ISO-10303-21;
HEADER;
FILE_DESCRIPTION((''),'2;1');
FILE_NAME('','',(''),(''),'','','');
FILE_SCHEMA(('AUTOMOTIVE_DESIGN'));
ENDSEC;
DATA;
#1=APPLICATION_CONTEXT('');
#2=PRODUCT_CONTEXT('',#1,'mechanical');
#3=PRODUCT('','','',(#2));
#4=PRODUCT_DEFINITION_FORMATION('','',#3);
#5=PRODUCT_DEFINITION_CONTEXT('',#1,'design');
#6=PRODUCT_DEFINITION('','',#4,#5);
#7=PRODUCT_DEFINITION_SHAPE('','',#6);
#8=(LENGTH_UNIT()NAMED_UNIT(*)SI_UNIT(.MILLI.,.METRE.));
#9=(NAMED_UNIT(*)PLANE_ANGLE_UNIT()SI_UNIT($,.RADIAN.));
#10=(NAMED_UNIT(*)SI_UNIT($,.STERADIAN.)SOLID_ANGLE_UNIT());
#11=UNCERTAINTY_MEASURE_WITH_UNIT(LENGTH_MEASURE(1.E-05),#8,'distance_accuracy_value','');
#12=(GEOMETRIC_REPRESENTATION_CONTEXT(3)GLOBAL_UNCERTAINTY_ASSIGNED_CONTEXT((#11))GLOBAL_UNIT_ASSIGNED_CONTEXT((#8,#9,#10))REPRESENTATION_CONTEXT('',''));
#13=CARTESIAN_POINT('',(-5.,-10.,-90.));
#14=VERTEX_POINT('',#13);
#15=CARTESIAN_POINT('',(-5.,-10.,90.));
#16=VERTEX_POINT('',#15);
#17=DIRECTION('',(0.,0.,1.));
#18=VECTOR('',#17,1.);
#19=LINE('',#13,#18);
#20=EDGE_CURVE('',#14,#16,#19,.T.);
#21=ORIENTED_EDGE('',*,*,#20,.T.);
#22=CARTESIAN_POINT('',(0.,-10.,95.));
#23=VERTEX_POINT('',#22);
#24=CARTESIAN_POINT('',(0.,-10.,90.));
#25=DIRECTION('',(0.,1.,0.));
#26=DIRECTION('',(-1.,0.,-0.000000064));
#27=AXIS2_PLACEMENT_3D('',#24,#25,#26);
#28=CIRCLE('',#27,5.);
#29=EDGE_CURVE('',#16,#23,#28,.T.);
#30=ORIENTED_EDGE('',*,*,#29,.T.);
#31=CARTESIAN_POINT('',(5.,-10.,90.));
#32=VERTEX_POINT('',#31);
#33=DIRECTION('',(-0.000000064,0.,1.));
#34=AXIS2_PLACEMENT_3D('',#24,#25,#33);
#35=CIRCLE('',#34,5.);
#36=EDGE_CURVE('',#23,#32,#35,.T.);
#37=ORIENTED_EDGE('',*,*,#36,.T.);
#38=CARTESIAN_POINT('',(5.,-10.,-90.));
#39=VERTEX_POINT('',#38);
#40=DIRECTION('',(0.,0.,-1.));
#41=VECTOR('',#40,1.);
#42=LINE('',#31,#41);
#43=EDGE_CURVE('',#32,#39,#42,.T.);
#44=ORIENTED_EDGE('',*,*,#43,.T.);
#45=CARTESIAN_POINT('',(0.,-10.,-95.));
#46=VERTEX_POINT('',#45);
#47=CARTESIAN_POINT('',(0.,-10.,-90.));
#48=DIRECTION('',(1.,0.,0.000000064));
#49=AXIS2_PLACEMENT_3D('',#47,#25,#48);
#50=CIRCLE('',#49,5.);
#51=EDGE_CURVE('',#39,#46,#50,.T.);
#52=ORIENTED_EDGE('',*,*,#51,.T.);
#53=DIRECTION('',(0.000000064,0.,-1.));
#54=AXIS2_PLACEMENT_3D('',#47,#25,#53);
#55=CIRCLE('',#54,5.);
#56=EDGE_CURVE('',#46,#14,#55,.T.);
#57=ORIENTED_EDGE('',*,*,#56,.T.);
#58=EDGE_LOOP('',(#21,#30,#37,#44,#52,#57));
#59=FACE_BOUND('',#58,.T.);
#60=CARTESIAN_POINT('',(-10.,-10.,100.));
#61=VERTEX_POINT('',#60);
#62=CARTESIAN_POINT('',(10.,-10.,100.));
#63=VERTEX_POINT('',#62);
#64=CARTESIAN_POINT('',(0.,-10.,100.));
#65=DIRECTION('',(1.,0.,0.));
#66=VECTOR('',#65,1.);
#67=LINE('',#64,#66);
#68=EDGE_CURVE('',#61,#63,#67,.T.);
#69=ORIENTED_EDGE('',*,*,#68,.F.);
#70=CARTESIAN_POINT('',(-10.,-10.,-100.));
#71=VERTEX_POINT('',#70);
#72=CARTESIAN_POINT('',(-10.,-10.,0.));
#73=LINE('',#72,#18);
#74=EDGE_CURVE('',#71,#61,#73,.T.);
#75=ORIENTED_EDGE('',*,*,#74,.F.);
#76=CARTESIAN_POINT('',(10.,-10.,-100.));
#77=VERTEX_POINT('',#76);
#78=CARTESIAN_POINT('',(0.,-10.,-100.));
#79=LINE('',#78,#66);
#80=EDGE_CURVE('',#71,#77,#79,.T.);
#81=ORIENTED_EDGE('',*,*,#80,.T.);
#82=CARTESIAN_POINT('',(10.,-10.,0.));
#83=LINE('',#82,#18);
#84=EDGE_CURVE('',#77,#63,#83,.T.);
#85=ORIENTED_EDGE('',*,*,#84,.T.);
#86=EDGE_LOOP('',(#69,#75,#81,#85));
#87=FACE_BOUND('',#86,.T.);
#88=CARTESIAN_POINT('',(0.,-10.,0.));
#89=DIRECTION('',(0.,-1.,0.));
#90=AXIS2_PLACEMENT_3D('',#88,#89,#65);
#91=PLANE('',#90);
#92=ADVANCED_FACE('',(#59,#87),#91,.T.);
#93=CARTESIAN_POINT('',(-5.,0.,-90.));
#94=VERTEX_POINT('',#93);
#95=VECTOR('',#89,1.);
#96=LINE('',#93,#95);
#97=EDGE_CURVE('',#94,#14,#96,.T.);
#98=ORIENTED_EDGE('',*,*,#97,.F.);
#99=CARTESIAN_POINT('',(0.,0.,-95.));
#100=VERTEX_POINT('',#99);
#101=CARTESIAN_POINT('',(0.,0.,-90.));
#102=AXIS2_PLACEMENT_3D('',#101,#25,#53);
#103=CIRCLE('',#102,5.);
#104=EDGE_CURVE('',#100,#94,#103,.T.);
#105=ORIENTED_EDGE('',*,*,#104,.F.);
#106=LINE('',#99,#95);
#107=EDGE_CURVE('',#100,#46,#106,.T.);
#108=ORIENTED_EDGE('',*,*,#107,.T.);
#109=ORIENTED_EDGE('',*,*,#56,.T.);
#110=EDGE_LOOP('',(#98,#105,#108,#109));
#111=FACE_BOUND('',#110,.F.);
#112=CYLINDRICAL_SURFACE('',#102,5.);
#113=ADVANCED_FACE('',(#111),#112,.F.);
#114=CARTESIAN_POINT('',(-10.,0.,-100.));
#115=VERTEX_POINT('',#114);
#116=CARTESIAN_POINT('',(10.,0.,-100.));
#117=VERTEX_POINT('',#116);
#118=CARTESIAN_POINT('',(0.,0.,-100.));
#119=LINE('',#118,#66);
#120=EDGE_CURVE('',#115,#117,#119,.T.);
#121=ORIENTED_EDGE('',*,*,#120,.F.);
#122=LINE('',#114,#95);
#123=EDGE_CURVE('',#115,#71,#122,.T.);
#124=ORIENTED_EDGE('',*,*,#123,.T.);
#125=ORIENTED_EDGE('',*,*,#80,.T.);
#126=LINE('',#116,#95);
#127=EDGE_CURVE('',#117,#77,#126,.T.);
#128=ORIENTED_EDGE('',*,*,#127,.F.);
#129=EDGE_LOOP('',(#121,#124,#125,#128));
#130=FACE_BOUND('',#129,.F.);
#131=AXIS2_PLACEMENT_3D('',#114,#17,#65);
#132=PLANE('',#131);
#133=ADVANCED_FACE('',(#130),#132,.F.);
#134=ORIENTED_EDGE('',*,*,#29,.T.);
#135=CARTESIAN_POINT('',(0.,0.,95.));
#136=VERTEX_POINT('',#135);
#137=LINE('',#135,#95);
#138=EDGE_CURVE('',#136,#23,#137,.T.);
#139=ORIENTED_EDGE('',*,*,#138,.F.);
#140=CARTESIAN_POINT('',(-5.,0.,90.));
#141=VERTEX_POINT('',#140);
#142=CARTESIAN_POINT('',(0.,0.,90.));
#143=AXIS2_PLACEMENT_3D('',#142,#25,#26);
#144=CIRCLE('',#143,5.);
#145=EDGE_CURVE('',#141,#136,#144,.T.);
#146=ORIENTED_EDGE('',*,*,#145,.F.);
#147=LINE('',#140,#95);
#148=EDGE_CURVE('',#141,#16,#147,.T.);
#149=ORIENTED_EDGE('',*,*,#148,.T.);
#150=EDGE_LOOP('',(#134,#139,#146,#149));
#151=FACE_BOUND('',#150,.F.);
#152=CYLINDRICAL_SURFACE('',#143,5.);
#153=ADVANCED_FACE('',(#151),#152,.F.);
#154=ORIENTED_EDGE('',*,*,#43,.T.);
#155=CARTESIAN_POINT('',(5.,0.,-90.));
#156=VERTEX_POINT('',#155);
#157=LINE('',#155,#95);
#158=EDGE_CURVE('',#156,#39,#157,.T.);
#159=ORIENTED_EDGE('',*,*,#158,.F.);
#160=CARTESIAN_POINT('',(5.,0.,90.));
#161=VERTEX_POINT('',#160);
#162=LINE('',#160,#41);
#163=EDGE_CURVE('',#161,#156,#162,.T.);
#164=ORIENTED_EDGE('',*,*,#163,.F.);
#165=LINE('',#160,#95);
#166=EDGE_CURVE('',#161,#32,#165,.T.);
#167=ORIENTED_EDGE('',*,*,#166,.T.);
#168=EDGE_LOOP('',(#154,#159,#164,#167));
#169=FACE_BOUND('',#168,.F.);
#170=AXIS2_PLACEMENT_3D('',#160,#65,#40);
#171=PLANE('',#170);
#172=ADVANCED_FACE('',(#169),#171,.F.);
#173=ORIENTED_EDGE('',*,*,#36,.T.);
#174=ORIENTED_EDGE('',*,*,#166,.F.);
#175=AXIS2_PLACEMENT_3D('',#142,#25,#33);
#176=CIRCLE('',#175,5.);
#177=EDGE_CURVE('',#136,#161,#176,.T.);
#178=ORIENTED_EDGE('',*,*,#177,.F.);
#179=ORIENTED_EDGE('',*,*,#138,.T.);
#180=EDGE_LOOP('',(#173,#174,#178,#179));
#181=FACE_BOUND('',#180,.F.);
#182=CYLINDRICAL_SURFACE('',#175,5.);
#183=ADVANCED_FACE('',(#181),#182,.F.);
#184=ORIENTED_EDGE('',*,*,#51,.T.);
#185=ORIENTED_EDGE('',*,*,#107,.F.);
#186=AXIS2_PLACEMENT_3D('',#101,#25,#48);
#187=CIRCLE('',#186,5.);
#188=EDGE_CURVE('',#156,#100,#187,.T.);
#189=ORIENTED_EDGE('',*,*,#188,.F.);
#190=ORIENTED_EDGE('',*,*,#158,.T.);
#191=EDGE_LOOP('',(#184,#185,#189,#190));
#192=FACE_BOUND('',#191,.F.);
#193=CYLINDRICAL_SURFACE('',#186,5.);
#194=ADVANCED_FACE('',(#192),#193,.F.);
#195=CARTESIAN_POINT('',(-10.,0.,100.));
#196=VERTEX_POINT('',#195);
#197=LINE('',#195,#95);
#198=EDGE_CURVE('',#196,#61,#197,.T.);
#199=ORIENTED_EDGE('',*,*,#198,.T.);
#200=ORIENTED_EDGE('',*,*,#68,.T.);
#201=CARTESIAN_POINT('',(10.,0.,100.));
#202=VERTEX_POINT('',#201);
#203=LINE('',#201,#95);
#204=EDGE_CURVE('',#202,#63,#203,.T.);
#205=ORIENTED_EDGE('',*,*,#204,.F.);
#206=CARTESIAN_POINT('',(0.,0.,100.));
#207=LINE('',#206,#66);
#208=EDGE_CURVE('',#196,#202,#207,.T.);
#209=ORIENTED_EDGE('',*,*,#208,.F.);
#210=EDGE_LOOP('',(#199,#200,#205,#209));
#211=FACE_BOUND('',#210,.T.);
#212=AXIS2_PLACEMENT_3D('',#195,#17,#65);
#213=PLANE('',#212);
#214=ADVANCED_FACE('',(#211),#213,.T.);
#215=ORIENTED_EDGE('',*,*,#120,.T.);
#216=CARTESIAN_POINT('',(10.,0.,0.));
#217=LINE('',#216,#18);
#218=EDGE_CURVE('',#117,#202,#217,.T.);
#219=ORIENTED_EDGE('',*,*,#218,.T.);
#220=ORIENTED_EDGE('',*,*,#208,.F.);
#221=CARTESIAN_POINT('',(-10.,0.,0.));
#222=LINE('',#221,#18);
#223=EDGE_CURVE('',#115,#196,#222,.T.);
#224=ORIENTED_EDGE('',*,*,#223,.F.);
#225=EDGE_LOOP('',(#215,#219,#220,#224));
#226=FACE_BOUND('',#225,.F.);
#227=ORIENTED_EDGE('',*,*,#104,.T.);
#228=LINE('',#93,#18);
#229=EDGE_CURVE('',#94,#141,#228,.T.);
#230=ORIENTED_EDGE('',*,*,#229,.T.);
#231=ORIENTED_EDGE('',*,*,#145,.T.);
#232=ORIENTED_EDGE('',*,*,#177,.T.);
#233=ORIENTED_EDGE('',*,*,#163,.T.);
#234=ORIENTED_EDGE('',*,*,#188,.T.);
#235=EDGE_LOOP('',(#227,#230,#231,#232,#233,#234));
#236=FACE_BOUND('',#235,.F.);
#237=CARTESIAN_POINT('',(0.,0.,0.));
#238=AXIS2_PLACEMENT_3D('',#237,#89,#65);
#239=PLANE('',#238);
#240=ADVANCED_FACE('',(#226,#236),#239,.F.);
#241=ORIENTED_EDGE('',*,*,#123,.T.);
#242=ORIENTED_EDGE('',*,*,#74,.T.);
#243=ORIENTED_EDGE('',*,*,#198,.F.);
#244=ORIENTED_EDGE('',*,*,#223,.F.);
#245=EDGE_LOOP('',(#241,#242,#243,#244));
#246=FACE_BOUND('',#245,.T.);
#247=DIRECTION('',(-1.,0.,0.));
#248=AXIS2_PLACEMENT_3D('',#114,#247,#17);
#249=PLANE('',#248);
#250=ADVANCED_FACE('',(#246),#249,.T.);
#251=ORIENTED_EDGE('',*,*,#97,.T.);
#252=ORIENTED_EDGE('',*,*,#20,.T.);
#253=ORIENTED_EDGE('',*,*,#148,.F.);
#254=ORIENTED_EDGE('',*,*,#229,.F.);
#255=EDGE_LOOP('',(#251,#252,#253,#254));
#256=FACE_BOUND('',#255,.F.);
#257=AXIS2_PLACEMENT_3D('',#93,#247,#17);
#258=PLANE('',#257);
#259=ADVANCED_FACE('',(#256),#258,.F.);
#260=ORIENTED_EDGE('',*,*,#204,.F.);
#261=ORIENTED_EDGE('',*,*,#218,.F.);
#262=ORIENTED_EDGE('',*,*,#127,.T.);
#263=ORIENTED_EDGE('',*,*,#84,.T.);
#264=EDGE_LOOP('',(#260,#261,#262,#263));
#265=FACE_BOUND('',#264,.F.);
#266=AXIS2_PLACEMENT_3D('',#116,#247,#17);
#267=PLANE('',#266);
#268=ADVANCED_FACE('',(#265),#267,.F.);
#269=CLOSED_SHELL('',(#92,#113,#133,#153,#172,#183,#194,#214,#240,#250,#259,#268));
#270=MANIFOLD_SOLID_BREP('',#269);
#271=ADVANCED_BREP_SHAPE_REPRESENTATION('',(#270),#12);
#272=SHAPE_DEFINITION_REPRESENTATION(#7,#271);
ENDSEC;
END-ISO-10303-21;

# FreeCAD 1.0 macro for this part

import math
import FreeCAD as App
import Part
import Sketcher
from FreeCAD import Vector

doc = App.newDocument("Part")
body = doc.addObject("PartDesign::Body", "Body")

# Sketch on XZ plane
sketch1 = body.newObject("Sketcher::SketchObject", "Sketch")
sketch1.AttachmentSupport = (doc.getObject("XZ_Plane"), [""])
sketch1.MapMode = "FlatFace"
sketch1.addGeometry(Part.LineSegment(Vector(-10, 100, 0), Vector(-10, -100, 0)), False)
sketch1.addGeometry(Part.LineSegment(Vector(-10, -100, 0), Vector(10, -100, 0)), False)
sketch1.addGeometry(Part.LineSegment(Vector(10, -100, 0), Vector(10, 100, 0)), False)
sketch1.addGeometry(Part.LineSegment(Vector(10, 100, 0), Vector(-10, 100, 0)), False)
sketch1.addGeometry(Part.ArcOfCircle(Part.Circle(Vector(0, 90, 0), Vector(0, 0, 1), 5), math.radians(-0.000004), math.radians(90.000004)), False)
sketch1.addGeometry(Part.LineSegment(Vector(5, 90, 0), Vector(5, -90, 0)), False)
sketch1.addGeometry(Part.ArcOfCircle(Part.Circle(Vector(0, -90, 0), Vector(0, 0, 1), 5), math.radians(-90.000004), math.radians(0.000004)), False)
sketch1.addGeometry(Part.ArcOfCircle(Part.Circle(Vector(0, -90, 0), Vector(0, 0, 1), 5), math.radians(179.999996), math.radians(270.000004)), False)
sketch1.addGeometry(Part.LineSegment(Vector(-5, -90, 0), Vector(-5, 90, 0)), False)
sketch1.addGeometry(Part.ArcOfCircle(Part.Circle(Vector(0, 90, 0), Vector(0, 0, 1), 5), math.radians(89.999996), math.radians(180.000004)), False)
sketch1.addConstraint(Sketcher.Constraint("Coincident", 0, 2, 1, 1))
sketch1.addConstraint(Sketcher.Constraint("Coincident", 1, 2, 2, 1))
sketch1.addConstraint(Sketcher.Constraint("Coincident", 2, 2, 3, 1))
sketch1.addConstraint(Sketcher.Constraint("Coincident", 3, 2, 0, 1))
sketch1.addConstraint(Sketcher.Constraint("Tangent", 4, 1, 5, 1))
sketch1.addConstraint(Sketcher.Constraint("Tangent", 5, 2, 6, 2))
sketch1.addConstraint(Sketcher.Constraint("Tangent", 6, 1, 7, 2))
sketch1.addConstraint(Sketcher.Constraint("Tangent", 7, 1, 8, 1))
sketch1.addConstraint(Sketcher.Constraint("Tangent", 8, 2, 9, 2))
sketch1.addConstraint(Sketcher.Constraint("Tangent", 9, 1, 4, 2))
sketch1.addConstraint(Sketcher.Constraint("Vertical", 0))
sketch1.addConstraint(Sketcher.Constraint("Horizontal", 1))
sketch1.addConstraint(Sketcher.Constraint("Vertical", 2))
sketch1.addConstraint(Sketcher.Constraint("Horizontal", 3))
sketch1.addConstraint(Sketcher.Constraint("Vertical", 5))
sketch1.addConstraint(Sketcher.Constraint("Vertical", 8))
sketch1.addConstraint(Sketcher.Constraint("Equal", 4, 6))
sketch1.addConstraint(Sketcher.Constraint("Equal", 6, 7))
sketch1.addConstraint(Sketcher.Constraint("Symmetric", 4, 3, 6, 3, -1, 1))
sketch1.addConstraint(Sketcher.Constraint("Symmetric", 0, 2, 2, 2, -1, 1))
sketch1.addConstraint(Sketcher.Constraint("PointOnObject", 6, 1, -2))
sketch1.addConstraint(Sketcher.Constraint("PointOnObject", 9, 1, -2))
sketch1.addConstraint(Sketcher.Constraint("Radius", 4, 5.0))
sketch1.addConstraint(Sketcher.Constraint("DistanceX", 1, 1, 1, 2, 20.0))
sketch1.addConstraint(Sketcher.Constraint("DistanceY", 0, 2, 0, 1, 200.0))
sketch1.addConstraint(Sketcher.Constraint("DistanceY", 5, 2, 5, 1, 180.0))
pad1 = body.newObject("PartDesign::Pad", "Pad")
pad1.Profile = sketch1
pad1.Length = 10

doc.recompute()
